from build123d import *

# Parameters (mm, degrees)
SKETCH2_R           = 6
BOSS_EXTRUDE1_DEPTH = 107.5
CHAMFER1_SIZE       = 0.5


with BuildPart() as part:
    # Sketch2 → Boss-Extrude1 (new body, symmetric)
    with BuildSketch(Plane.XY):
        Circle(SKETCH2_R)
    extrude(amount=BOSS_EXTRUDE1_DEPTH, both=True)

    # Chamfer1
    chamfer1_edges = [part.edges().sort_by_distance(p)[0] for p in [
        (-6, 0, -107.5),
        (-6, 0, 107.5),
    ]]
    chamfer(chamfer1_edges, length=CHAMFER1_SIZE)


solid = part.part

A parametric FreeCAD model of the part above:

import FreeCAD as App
import Part
import Sketcher

V = App.Vector


def edges_at(feature, points):
    """Names of the edges that pass closest to the given points."""
    edges = feature.Shape.Edges
    near = lambda p: min(range(len(edges)), key=lambda i: edges[i].distToShape(Part.Vertex(*p))[0])
    return sorted({f"Edge{near(p) + 1}" for p in points})

doc = App.newDocument("Part")
body = doc.addObject("PartDesign::Body", "Body")

# Sketch on XY plane
sketch1 = doc.addObject("Sketcher::SketchObject", "Sketch")
body.addObject(sketch1)
sketch1.AttachmentSupport = (doc.XY_Plane, [""])
sketch1.MapMode = "FlatFace"
sketch1.addGeometry(Part.Circle(V(0, 0, 0), V(0, 0, 1), 6), False)
sketch1.addConstraint([
    Sketcher.Constraint("Coincident", 0, 3, -1, 1),
    Sketcher.Constraint("Diameter", 0, 12.0),
])
pad1 = doc.addObject("PartDesign::Pad", "Pad")
body.addObject(pad1)
pad1.Profile = sketch1
pad1.Length = 215
pad1.Midplane = True
doc.recompute()

chamfer = doc.addObject("PartDesign::Chamfer", "Chamfer")
body.addObject(chamfer)
chamfer.Base = (pad1, edges_at(pad1, [(-6, 0, -107.5), (-6, 0, 107.5)]))
chamfer.Size = 0.5

doc.recompute()
